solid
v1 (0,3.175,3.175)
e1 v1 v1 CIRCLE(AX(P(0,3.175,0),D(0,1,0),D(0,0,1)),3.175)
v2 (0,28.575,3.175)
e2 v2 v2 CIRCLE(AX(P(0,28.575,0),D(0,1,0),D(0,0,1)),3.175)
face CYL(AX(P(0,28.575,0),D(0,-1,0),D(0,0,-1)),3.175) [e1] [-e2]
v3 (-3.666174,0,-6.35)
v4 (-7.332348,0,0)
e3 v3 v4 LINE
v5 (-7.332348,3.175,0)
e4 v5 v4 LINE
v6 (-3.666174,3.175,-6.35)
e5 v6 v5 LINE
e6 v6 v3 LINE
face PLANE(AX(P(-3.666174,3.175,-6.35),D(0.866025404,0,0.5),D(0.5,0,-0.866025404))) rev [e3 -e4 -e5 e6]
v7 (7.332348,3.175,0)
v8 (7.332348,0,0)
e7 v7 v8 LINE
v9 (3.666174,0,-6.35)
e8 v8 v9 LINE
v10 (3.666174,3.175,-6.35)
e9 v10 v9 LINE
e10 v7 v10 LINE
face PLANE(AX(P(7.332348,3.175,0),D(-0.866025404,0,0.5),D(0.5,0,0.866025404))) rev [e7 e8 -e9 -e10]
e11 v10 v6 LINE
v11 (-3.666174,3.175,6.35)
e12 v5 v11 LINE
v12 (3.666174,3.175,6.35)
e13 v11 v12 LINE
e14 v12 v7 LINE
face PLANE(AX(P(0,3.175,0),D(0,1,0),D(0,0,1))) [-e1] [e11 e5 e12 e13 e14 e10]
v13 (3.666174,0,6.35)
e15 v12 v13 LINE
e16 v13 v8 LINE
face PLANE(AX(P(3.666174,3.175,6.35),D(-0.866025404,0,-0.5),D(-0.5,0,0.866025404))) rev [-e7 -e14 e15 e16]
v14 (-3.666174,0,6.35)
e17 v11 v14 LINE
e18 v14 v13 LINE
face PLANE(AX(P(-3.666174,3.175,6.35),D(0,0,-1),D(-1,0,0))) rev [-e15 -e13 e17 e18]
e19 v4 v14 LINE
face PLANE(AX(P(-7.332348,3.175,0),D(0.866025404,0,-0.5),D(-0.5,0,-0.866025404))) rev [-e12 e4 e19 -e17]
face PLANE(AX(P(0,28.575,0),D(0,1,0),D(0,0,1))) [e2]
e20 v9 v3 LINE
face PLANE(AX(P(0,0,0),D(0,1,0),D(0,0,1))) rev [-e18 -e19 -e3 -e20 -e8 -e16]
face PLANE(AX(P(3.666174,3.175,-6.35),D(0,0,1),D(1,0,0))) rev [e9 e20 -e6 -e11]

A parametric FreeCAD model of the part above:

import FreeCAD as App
import Part
import Sketcher

V = App.Vector
Q = App.Units.Quantity


def add_polygon(sketch, points):
    """Adds a closed chain of lines whose ends are joined by coincident constraints."""
    first, n = sketch.GeometryCount, len(points)
    for a, b in zip(points, points[1:] + points[:1]):
        sketch.addGeometry(Part.LineSegment(App.Vector(*a, 0), App.Vector(*b, 0)), False)
    for i in range(n):
        sketch.addConstraint(Sketcher.Constraint("Coincident", first + i, 2, first + (i + 1) % n, 1))

doc = App.newDocument("Part")
body = doc.addObject("PartDesign::Body", "Body")

sketch1 = body.newObject("Sketcher::SketchObject", "Sketch")
sketch1.AttachmentSupport = (doc.getObject("XZ_Plane"), [""])
sketch1.MapMode = "FlatFace"
add_polygon(sketch1, [(4, -6), (-4, -6), (-7, 0), (-4, 6), (4, 6), (7, 0)])
sketch1.addConstraint(Sketcher.Constraint("Horizontal", 0))
sketch1.addConstraint(Sketcher.Constraint("Horizontal", 3))
sketch1.addConstraint(Sketcher.Constraint("Symmetric", 0, 2, 3, 2, -1, 1))
sketch1.addConstraint(Sketcher.Constraint("Symmetric", 1, 2, 4, 2, -1, 1))
sketch1.addConstraint(Sketcher.Constraint("PointOnObject", 1, 2, -1))
sketch1.addConstraint(Sketcher.Constraint("Parallel", 2, 5))
sketch1.addConstraint(Sketcher.Constraint("Vertical", 0, 2, 2, 2))
sketch1.addConstraint(Sketcher.Constraint("Angle", 1, Q("120 deg")))
sketch1.addConstraint(Sketcher.Constraint("DistanceY", 0, 2, 2, 2, Q("0.5 in")))
sketch1.addConstraint(Sketcher.Constraint("DistanceX", 0, 2, 0, 1, 7.332348))
pad1 = body.newObject("PartDesign::Pad", "Pad")
pad1.Profile = sketch1
pad1.Length = Q("0.125 in")
pad1.Reversed = True

sketch2 = body.newObject("Sketcher::SketchObject", "Sketch001")
sketch2.AttachmentSupport = (doc.getObject("XZ_Plane"), [""])
sketch2.MapMode = "FlatFace"
sketch2.AttachmentOffset = App.Placement(V(0, 0, -0.125 * 25.4), App.Rotation())
sketch2.addGeometry(Part.Circle(V(0, 0, 0), V(0, 0, 1), 3.2), False)
sketch2.addConstraint(Sketcher.Constraint("Coincident", 0, 3, -1, 1))
sketch2.addConstraint(Sketcher.Constraint("Diameter", 0, Q("0.25 in")))
pad2 = body.newObject("PartDesign::Pad", "Pad001")
pad2.Profile = sketch2
pad2.Length = Q("1 in")
pad2.Reversed = True

doc.recompute()
